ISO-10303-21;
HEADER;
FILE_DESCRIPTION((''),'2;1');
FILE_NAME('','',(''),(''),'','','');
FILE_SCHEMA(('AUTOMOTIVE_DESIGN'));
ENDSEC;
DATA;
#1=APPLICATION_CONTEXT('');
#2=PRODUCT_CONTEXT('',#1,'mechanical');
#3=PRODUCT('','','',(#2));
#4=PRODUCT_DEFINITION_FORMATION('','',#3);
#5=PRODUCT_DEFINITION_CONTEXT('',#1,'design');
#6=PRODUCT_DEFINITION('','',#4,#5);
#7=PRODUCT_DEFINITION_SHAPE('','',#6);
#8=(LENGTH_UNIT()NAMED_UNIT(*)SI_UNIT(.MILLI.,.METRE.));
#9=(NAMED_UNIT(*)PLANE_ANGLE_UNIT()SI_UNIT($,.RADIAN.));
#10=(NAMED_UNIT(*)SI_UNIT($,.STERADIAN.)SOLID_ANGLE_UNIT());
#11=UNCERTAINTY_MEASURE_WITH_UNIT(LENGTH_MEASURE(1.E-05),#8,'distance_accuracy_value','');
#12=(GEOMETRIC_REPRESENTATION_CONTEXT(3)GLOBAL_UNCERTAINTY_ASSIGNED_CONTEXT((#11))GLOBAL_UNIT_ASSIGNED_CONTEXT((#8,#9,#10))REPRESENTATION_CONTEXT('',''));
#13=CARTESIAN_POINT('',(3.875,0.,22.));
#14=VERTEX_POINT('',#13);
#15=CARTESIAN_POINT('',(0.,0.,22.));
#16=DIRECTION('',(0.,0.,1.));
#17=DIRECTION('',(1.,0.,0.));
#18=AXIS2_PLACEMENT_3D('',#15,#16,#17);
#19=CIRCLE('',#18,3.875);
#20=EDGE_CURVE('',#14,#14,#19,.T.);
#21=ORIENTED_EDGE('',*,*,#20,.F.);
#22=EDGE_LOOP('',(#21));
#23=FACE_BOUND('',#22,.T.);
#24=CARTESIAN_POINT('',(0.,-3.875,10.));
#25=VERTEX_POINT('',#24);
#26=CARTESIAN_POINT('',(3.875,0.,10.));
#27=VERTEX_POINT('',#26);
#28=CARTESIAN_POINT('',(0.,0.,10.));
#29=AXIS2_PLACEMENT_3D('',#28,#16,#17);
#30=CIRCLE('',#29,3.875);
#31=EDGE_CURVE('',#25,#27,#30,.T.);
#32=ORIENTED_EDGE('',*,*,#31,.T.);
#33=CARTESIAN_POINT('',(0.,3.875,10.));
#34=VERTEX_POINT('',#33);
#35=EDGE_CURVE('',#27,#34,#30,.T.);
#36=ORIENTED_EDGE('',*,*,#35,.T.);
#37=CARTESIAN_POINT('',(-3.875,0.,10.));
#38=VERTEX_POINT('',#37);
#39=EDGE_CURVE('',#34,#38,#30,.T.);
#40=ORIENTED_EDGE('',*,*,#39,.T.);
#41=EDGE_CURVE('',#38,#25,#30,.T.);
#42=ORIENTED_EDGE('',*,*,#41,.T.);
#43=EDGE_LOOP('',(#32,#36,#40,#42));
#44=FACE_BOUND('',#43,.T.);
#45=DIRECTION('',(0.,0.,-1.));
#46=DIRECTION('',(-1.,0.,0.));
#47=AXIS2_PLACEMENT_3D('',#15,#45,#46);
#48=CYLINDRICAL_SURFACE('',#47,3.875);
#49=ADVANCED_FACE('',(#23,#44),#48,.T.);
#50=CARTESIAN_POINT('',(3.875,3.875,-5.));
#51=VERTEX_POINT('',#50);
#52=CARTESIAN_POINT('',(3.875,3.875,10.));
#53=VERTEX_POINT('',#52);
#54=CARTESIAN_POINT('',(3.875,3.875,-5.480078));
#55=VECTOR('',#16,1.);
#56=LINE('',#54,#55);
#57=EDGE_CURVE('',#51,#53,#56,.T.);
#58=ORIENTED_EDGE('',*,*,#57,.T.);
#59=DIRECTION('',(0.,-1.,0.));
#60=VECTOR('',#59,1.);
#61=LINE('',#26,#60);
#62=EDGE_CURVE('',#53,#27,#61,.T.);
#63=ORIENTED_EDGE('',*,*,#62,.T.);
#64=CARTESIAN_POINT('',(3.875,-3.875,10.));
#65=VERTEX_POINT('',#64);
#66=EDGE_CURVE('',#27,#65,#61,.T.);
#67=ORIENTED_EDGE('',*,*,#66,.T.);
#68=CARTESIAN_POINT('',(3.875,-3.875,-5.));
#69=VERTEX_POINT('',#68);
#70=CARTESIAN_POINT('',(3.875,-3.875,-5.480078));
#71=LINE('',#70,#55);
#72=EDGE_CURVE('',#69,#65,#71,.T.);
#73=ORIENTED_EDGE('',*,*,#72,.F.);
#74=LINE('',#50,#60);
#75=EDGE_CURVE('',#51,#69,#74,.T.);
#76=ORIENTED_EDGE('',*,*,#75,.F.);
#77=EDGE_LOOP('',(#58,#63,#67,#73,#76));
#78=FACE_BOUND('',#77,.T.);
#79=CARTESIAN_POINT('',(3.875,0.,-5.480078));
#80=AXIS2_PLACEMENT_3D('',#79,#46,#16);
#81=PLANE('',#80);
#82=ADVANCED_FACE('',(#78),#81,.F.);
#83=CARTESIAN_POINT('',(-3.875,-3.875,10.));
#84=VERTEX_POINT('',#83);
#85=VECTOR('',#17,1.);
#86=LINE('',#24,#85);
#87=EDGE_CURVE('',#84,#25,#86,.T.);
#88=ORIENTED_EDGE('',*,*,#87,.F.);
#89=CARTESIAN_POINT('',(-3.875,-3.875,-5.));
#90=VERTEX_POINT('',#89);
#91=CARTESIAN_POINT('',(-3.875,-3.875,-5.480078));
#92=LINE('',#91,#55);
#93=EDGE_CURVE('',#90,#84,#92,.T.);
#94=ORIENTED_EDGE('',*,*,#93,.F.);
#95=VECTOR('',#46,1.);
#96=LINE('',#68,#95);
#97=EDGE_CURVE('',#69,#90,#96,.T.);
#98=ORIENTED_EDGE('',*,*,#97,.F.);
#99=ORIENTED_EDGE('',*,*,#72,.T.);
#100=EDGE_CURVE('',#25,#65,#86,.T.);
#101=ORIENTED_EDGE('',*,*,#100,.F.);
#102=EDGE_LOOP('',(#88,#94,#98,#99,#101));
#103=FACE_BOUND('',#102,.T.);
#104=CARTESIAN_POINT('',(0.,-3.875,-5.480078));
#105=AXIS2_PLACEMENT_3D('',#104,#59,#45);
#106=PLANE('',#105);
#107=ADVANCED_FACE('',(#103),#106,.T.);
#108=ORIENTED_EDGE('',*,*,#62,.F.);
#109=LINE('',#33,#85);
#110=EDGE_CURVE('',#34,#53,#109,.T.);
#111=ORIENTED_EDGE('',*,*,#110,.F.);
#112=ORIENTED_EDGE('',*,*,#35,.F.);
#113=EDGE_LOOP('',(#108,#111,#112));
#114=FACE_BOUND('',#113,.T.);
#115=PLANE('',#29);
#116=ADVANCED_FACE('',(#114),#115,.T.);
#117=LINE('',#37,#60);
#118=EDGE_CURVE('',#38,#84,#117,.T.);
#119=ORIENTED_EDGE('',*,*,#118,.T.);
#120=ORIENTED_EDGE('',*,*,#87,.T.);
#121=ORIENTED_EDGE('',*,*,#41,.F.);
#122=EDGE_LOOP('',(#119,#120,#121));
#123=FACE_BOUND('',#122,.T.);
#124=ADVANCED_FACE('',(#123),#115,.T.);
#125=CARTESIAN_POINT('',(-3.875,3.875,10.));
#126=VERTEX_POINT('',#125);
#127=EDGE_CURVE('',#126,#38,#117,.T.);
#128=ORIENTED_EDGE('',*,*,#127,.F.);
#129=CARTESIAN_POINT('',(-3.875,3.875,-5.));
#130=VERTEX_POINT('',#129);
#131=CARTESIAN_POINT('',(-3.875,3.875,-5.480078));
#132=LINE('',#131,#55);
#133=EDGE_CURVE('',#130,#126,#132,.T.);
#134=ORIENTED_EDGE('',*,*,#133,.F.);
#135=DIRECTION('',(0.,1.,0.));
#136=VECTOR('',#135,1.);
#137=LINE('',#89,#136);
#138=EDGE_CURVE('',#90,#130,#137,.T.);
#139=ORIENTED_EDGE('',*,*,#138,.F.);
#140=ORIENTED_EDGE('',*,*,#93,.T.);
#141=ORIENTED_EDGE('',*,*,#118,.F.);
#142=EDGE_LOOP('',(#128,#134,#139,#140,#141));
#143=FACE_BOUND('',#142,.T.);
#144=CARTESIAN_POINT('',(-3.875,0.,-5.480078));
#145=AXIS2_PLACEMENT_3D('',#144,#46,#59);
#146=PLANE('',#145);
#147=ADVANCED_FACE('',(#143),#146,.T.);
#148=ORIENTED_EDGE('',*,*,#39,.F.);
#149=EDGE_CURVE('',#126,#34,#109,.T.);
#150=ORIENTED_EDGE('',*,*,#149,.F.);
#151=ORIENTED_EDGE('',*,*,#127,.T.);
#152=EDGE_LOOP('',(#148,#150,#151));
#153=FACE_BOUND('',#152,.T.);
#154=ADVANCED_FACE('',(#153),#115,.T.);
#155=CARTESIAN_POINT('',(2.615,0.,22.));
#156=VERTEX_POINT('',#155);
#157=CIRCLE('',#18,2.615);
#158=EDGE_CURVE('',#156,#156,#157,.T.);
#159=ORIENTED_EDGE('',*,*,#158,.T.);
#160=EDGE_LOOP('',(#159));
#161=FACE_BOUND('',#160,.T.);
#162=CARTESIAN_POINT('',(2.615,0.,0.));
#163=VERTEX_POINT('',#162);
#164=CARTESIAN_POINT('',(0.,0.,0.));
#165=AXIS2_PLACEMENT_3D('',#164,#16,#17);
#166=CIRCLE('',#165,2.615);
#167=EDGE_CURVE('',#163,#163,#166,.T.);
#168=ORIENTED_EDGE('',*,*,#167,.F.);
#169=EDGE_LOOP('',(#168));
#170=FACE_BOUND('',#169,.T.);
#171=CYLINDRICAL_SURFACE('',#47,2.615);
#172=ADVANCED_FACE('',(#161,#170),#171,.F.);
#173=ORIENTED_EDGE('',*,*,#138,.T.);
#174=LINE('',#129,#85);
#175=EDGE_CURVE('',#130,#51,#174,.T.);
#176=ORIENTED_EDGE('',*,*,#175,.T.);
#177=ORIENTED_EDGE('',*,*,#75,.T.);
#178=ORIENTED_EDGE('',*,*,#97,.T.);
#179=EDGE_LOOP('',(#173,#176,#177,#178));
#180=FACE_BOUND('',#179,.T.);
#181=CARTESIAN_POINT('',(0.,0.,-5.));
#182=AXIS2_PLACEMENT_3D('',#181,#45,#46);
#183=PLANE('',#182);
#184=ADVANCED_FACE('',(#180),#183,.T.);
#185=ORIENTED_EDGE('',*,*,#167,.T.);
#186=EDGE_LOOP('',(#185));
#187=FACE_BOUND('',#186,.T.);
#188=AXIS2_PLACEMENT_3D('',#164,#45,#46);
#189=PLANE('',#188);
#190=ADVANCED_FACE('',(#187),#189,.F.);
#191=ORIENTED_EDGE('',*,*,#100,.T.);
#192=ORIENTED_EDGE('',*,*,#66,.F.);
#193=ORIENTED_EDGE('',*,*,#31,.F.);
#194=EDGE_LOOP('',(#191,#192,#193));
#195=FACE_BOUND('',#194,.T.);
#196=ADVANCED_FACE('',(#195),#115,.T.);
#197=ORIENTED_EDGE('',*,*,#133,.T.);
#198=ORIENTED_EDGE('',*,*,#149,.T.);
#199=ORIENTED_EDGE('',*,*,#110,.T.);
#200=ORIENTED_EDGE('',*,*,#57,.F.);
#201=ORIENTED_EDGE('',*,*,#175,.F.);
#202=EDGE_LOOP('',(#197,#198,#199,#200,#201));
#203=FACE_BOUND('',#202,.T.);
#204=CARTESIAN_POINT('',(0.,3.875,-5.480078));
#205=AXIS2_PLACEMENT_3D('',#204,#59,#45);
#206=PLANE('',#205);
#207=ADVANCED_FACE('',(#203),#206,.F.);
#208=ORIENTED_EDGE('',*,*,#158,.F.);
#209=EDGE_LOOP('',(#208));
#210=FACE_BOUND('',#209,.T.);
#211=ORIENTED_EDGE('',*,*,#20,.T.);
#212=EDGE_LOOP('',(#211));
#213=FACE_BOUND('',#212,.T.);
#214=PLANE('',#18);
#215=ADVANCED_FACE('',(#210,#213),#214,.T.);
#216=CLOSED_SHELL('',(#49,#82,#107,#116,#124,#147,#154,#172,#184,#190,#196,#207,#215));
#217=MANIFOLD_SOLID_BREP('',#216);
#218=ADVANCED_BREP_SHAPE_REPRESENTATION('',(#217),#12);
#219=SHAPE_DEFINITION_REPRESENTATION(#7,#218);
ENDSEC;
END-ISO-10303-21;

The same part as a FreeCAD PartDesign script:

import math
import FreeCAD as App
import Part
import Sketcher
Q = App.Units.Quantity


def add_polygon(sketch, points):
    """Adds a closed chain of lines whose ends are joined by coincident constraints."""
    first, n = sketch.GeometryCount, len(points)
    for a, b in zip(points, points[1:] + points[:1]):
        sketch.addGeometry(Part.LineSegment(App.Vector(*a, 0), App.Vector(*b, 0)), False)
    for i in range(n):
        sketch.addConstraint(Sketcher.Constraint("Coincident", first + i, 2, first + (i + 1) % n, 1))

doc = App.newDocument("Part")
params = doc.addObject("Spreadsheet::Sheet", "Params")
for row, (alias, value) in enumerate([
    ("sketch1_diameter", "7.75 mm"),
    ("sketch1_diameter2", "5.23 mm"),
    ("pad1_length", "22 mm"),
    ("pad2_length", "10 mm"),
    ("sketch3_width", "7.75 mm"),
    ("pad3_length", "5 mm"),
], start=1):
    params.set(f"A{row}", alias)
    params.set(f"B{row}", "=" + value)
    params.setAlias(f"B{row}", alias)

body = doc.addObject("PartDesign::Body", "Body")

# Sketch on XY plane
sketch1 = body.newObject("Sketcher::SketchObject", "Sketch")
sketch1.AttachmentSupport = (doc.getObject("XY_Plane"), [""])
sketch1.MapMode = "FlatFace"
sketch1.addGeometry([
    Part.Circle(App.Vector(0, 0, 0), App.Vector(0, 0, 1), 3.9),
    Part.Circle(App.Vector(0, 0, 0), App.Vector(0, 0, 1), 2.6),
], False)
sketch1.addConstraint([
    Sketcher.Constraint("Coincident", 0, 3, -1, 1),
    Sketcher.Constraint("Coincident", 1, 3, -1, 1),
    Sketcher.Constraint("Diameter", 0, Q("7.75 mm")),
    Sketcher.Constraint("Diameter", 1, Q("5.23 mm")),
])
sketch1.setExpression("Constraints[2]", "Params.sketch1_diameter")
sketch1.setExpression("Constraints[3]", "Params.sketch1_diameter2")
pad1 = body.newObject("PartDesign::Pad", "Pad")
pad1.Profile = sketch1
pad1.setExpression("Length", "Params.pad1_length")

# Sketch on XY plane
sketch2 = body.newObject("Sketcher::SketchObject", "Sketch001")
sketch2.AttachmentSupport = (doc.getObject("XY_Plane"), [""])
sketch2.MapMode = "FlatFace"
sketch2.AttachmentOffset = App.Placement(App.Vector(0, 0, 10), App.Rotation())
sketch2.addGeometry([
    Part.LineSegment(App.Vector(0, 3.9, 0), App.Vector(-3.9, 3.9, 0)),  # 0
    Part.LineSegment(App.Vector(-3.9, 3.9, 0), App.Vector(-3.9, 0, 0)),  # 1
    Part.ArcOfCircle(Part.Circle(App.Vector(0, 0, 0), App.Vector(0, 0, 1), 3.9), math.radians(90), math.radians(180)),  # 2
    Part.ArcOfCircle(Part.Circle(App.Vector(0, 0, 0), App.Vector(0, 0, 1), 3.9), math.radians(180), math.radians(270)),  # 3
    Part.LineSegment(App.Vector(-3.9, 0, 0), App.Vector(-3.9, -3.9, 0)),  # 4
    Part.LineSegment(App.Vector(-3.9, -3.9, 0), App.Vector(0, -3.9, 0)),  # 5
    Part.LineSegment(App.Vector(3.9, 3.9, 0), App.Vector(0, 3.9, 0)),  # 6
    Part.ArcOfCircle(Part.Circle(App.Vector(0, 0, 0), App.Vector(0, 0, 1), 3.9), math.radians(0), math.radians(90)),  # 7
    Part.LineSegment(App.Vector(3.9, 0, 0), App.Vector(3.9, 3.9, 0)),  # 8
    Part.LineSegment(App.Vector(3.9, -3.9, 0), App.Vector(3.9, 0, 0)),  # 9
    Part.ArcOfCircle(Part.Circle(App.Vector(0, 0, 0), App.Vector(0, 0, 1), 3.9), math.radians(-90), math.radians(0)),  # 10
    Part.LineSegment(App.Vector(0, -3.9, 0), App.Vector(3.9, -3.9, 0)),  # 11
], False)
sketch2.addConstraint([
    Sketcher.Constraint("Coincident", 0, 2, 1, 1),
    Sketcher.Constraint("Tangent", 1, 2, 2, 2),
    Sketcher.Constraint("Tangent", 2, 1, 0, 1),
    Sketcher.Constraint("Tangent", 3, 1, 4, 1),
    Sketcher.Constraint("Coincident", 4, 2, 5, 1),
    Sketcher.Constraint("Tangent", 5, 2, 3, 2),
    Sketcher.Constraint("Tangent", 6, 2, 7, 2),
    Sketcher.Constraint("Tangent", 7, 1, 8, 1),
    Sketcher.Constraint("Coincident", 8, 2, 6, 1),
    Sketcher.Constraint("Tangent", 9, 2, 10, 2),
    Sketcher.Constraint("Tangent", 10, 1, 11, 1),
    Sketcher.Constraint("Coincident", 11, 2, 9, 1),
    Sketcher.Constraint("Horizontal", 0),
    Sketcher.Constraint("Vertical", 1),
    Sketcher.Constraint("Vertical", 4),
    Sketcher.Constraint("Horizontal", 5),
    Sketcher.Constraint("Horizontal", 6),
    Sketcher.Constraint("Vertical", 8),
    Sketcher.Constraint("Vertical", 9),
    Sketcher.Constraint("Horizontal", 11),
    Sketcher.Constraint("Coincident", 2, 3, -1, 1),
    Sketcher.Constraint("Coincident", 3, 3, -1, 1),
    Sketcher.Constraint("Coincident", 7, 3, -1, 1),
    Sketcher.Constraint("Coincident", 10, 3, -1, 1),
    Sketcher.Constraint("Equal", 2, 3),
    Sketcher.Constraint("Equal", 3, 7),
    Sketcher.Constraint("Equal", 7, 10),
    Sketcher.Constraint("Radius", 2, Q("3.875 mm")),
])
pad2 = body.newObject("PartDesign::Pad", "Pad001")
pad2.Profile = sketch2
pad2.setExpression("Length", "Params.pad2_length")
pad2.Reversed = True

# Sketch on XY plane
sketch3 = body.newObject("Sketcher::SketchObject", "Sketch002")
sketch3.AttachmentSupport = (doc.getObject("XY_Plane"), [""])
sketch3.MapMode = "FlatFace"
add_polygon(sketch3, [(4, 4), (4, -4), (-4, -4), (-4, 4)])  # lines 0-3
sketch3.addConstraint([
    Sketcher.Constraint("Vertical", 0),
    Sketcher.Constraint("Horizontal", 1),
    Sketcher.Constraint("Vertical", 2),
    Sketcher.Constraint("Horizontal", 3),
    Sketcher.Constraint("Symmetric", 0, 2, 2, 2, -1, 1),
    Sketcher.Constraint("Equal", 3, 0),
    Sketcher.Constraint("DistanceX", 1, 2, 1, 1, Q("7.75 mm")),
])
sketch3.setExpression("Constraints[10]", "Params.sketch3_width")
pad3 = body.newObject("PartDesign::Pad", "Pad002")
pad3.Profile = sketch3
pad3.setExpression("Length", "Params.pad3_length")
pad3.Reversed = True

doc.recompute()
